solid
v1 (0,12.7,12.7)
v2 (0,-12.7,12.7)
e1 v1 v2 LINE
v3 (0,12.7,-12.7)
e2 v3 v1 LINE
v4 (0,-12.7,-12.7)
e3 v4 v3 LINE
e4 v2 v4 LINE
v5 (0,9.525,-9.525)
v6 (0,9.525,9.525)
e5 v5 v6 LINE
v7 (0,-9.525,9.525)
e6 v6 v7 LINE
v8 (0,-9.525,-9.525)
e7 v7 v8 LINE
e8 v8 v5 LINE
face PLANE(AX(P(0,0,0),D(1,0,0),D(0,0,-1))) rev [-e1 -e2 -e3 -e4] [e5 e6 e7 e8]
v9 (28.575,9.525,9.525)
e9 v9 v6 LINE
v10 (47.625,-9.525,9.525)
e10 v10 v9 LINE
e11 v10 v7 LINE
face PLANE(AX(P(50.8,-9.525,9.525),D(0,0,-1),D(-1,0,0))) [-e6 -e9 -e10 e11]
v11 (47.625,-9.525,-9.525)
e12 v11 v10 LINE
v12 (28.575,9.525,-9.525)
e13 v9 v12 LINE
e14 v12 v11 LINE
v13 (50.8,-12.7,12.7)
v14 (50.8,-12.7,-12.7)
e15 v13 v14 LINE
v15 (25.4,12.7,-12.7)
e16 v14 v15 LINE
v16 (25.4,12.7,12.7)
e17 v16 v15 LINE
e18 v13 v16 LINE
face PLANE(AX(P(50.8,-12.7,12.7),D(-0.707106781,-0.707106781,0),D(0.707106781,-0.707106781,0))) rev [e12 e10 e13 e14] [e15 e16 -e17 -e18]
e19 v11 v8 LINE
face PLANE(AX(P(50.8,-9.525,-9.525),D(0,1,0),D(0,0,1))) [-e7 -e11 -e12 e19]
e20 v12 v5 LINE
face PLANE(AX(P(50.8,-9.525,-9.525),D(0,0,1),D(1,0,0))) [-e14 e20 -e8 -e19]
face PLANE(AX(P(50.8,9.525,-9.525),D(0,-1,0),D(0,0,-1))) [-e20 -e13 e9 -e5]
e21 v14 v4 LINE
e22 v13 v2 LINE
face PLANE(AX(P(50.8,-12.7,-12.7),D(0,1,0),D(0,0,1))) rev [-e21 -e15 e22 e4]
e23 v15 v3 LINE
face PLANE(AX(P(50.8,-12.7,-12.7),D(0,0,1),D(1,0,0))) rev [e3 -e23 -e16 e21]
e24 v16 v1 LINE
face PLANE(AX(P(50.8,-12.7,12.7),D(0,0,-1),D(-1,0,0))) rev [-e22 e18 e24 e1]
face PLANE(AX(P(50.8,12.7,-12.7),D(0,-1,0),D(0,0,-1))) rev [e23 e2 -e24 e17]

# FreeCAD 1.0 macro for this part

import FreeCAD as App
import Part
import Sketcher
from FreeCAD import Vector
Q = App.Units.Quantity


def add_polygon(sketch, points):
    """Adds a closed chain of lines whose ends are joined by coincident constraints."""
    first, n = sketch.GeometryCount, len(points)
    for a, b in zip(points, points[1:] + points[:1]):
        sketch.addGeometry(Part.LineSegment(App.Vector(*a, 0), App.Vector(*b, 0)), False)
    for i in range(n):
        sketch.addConstraint(Sketcher.Constraint("Coincident", first + i, 2, first + (i + 1) % n, 1))

doc = App.newDocument("Part")
body = doc.addObject("PartDesign::Body", "Body")

# Sketch on YZ plane
sketch1 = body.newObject("Sketcher::SketchObject", "Sketch")
sketch1.AttachmentSupport = (doc.getObject("YZ_Plane"), [""])
sketch1.MapMode = "FlatFace"
add_polygon(sketch1, [(13, 13), (-13, 13), (-13, -13), (13, -13)])  # lines 0-3
add_polygon(sketch1, [(-10, -10), (-10, 10), (10, 10), (10, -10)])  # lines 4-7
sketch1.addConstraint(Sketcher.Constraint("Horizontal", 0))
sketch1.addConstraint(Sketcher.Constraint("Vertical", 1))
sketch1.addConstraint(Sketcher.Constraint("Horizontal", 2))
sketch1.addConstraint(Sketcher.Constraint("Vertical", 3))
sketch1.addConstraint(Sketcher.Constraint("Vertical", 4))
sketch1.addConstraint(Sketcher.Constraint("Horizontal", 5))
sketch1.addConstraint(Sketcher.Constraint("Vertical", 6))
sketch1.addConstraint(Sketcher.Constraint("Horizontal", 7))
sketch1.addConstraint(Sketcher.Constraint("Symmetric", 0, 2, 2, 2, -1, 1))
sketch1.addConstraint(Sketcher.Constraint("Symmetric", 4, 2, 6, 2, -1, 1))
sketch1.addConstraint(Sketcher.Constraint("Equal", 2, 1))
sketch1.addConstraint(Sketcher.Constraint("Equal", 7, 4))
sketch1.addConstraint(Sketcher.Constraint("DistanceX", 0, 2, 0, 1, Q("1 in")))
sketch1.addConstraint(Sketcher.Constraint("DistanceX", 5, 1, 5, 2, Q("0.75 in")))
pad1 = body.newObject("PartDesign::Pad", "Pad")
pad1.Profile = sketch1
pad1.Length = Q("2 in")

# Sketch on XY plane
sketch2 = body.newObject("Sketcher::SketchObject", "Sketch001")
sketch2.AttachmentSupport = (doc.getObject("XY_Plane"), [""])
sketch2.MapMode = "FlatFace"
sketch2.AttachmentOffset = App.Placement(Vector(0, 0, -0.5 * 25.4), App.Rotation())
add_polygon(sketch2, [(51, -13), (25, 13), (51, 13)])  # lines 0-2
sketch2.addConstraint(Sketcher.Constraint("Horizontal", 1))
sketch2.addConstraint(Sketcher.Constraint("Vertical", 2))
sketch2.addConstraint(Sketcher.Constraint("Equal", 1, 2))
sketch2.addConstraint(Sketcher.Constraint("DistanceX", 1, 1, 1, 2, Q("1 in")))
sketch2.addConstraint(Sketcher.Constraint("DistanceX", -1, 1, 0, 2, Q("1 in")))
sketch2.addConstraint(Sketcher.Constraint("DistanceY", -1, 1, 0, 2, Q("0.5 in")))
pocket1 = body.newObject("PartDesign::Pocket", "Pocket")
pocket1.Profile = sketch2
pocket1.Type = "ThroughAll"
pocket1.Reversed = True

doc.recompute()
